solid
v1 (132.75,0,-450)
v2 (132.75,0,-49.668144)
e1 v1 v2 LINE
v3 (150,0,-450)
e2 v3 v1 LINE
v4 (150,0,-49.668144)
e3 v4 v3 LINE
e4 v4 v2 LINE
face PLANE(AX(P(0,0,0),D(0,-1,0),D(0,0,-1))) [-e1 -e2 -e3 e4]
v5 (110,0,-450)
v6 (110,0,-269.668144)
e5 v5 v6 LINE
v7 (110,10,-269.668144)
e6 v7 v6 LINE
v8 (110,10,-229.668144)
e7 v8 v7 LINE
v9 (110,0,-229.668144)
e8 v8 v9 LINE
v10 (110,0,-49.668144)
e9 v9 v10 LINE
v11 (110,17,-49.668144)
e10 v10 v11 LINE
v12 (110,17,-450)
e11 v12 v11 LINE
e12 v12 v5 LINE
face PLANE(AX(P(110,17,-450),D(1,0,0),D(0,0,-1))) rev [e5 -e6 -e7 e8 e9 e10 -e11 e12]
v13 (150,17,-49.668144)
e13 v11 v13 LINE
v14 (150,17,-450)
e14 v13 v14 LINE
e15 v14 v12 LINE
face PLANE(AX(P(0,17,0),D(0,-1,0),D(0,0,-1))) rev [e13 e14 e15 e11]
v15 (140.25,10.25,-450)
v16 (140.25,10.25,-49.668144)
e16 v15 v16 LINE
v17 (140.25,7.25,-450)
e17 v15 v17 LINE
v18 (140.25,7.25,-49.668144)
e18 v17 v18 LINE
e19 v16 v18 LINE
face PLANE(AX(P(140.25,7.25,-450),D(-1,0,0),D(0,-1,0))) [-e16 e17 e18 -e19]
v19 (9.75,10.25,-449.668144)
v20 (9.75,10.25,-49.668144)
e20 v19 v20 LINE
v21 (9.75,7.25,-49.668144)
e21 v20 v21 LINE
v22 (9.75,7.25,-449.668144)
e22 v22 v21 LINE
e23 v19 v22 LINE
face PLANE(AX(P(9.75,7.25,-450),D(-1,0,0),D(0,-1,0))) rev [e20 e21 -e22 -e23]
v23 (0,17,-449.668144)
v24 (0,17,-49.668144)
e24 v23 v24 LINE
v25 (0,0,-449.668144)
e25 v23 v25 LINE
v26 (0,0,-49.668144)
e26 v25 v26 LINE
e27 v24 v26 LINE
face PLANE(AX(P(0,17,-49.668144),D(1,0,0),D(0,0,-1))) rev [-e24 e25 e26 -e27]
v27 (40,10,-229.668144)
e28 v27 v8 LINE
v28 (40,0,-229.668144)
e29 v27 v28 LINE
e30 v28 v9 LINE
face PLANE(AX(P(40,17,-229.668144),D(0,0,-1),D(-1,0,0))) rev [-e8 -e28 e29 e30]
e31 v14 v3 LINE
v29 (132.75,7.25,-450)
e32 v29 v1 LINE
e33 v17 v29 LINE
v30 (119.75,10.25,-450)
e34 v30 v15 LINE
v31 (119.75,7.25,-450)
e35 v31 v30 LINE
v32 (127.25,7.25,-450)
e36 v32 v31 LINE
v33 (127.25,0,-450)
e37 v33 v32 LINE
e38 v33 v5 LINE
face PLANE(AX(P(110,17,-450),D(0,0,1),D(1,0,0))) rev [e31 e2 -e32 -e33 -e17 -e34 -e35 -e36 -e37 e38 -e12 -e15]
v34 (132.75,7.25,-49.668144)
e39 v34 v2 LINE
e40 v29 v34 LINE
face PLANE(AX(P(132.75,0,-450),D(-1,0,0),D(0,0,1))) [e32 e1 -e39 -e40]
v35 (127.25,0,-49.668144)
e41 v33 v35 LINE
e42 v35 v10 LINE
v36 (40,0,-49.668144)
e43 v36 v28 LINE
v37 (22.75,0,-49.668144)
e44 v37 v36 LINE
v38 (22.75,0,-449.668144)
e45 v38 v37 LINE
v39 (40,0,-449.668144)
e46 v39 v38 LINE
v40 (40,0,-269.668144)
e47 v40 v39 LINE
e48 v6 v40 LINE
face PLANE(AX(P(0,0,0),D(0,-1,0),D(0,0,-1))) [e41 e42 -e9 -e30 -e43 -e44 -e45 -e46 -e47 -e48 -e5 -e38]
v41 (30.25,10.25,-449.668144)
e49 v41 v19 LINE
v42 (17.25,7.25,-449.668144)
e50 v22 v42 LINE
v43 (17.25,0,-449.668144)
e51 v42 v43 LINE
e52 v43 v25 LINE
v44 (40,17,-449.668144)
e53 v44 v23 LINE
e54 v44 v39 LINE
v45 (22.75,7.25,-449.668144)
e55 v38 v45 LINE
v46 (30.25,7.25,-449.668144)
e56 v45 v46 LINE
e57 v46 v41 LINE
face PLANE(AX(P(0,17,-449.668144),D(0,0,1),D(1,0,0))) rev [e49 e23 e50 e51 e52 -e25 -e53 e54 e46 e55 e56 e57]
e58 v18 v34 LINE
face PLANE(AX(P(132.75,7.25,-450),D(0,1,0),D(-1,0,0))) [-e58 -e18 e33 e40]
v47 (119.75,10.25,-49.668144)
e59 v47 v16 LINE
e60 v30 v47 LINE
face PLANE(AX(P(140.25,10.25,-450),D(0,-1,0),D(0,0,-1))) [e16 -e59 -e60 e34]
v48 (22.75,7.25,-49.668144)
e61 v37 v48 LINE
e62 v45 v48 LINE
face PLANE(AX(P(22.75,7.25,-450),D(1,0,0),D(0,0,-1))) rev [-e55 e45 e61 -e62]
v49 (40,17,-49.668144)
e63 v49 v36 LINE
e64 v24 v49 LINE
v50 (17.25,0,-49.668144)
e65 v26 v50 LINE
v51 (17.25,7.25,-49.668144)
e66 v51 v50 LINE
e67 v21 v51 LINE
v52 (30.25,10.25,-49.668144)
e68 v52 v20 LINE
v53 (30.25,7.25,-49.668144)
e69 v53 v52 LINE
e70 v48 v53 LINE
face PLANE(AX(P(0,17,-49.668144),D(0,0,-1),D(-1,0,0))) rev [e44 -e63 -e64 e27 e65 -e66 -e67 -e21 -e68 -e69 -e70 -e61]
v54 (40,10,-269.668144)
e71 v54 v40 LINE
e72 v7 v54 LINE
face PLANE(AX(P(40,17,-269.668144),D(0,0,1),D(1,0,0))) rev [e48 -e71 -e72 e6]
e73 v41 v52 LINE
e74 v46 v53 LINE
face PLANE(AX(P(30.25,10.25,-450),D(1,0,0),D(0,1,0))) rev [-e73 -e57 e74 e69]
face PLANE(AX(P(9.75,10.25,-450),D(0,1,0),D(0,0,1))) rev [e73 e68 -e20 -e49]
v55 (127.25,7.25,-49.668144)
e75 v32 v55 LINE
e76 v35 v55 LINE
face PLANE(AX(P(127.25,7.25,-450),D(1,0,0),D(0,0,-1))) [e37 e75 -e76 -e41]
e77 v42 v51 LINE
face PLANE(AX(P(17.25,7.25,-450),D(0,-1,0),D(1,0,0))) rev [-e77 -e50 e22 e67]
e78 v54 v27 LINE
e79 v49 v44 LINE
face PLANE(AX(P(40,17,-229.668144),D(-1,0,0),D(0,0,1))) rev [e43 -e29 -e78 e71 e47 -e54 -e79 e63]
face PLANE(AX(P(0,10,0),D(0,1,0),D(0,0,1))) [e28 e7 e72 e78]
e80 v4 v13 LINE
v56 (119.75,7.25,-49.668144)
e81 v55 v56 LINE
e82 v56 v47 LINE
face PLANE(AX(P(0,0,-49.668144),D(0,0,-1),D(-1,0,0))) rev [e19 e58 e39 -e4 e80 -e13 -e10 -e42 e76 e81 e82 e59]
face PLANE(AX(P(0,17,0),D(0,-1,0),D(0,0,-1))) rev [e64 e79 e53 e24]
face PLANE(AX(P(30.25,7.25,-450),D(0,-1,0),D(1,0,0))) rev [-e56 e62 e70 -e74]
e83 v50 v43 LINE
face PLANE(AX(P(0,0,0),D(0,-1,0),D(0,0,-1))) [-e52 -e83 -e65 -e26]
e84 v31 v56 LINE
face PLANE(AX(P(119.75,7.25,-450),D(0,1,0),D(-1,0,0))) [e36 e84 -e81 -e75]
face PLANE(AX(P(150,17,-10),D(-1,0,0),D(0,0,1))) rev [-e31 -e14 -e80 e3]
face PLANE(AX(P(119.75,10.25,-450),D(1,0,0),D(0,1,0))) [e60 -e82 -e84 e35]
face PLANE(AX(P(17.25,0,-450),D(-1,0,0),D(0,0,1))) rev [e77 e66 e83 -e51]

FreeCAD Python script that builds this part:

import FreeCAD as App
import Part
import Sketcher
Q = App.Units.Quantity


def add_polygon(sketch, points):
    """Adds a closed chain of lines whose ends are joined by coincident constraints."""
    first, n = sketch.GeometryCount, len(points)
    for a, b in zip(points, points[1:] + points[:1]):
        sketch.addGeometry(Part.LineSegment(App.Vector(*a, 0), App.Vector(*b, 0)), False)
    for i in range(n):
        sketch.addConstraint(Sketcher.Constraint("Coincident", first + i, 2, first + (i + 1) % n, 1))

doc = App.newDocument("Part")
body = doc.addObject("PartDesign::Body", "Body")

# Sketch on XZ plane
sketch1 = doc.addObject("Sketcher::SketchObject", "Sketch")
body.addObject(sketch1)
sketch1.AttachmentSupport = (doc.XZ_Plane, [""])
sketch1.MapMode = "FlatFace"
add_polygon(sketch1, [(40, -270), (40, -450), (0, -450), (0, -50), (40, -50), (40, -230), (110, -230), (110, -10), (150, -10), (150, -450), (110, -450), (110, -270)])  # lines 0-11
sketch1.addConstraint([
    Sketcher.Constraint("Vertical", 0),
    Sketcher.Constraint("Horizontal", 1),
    Sketcher.Constraint("Vertical", 2),
    Sketcher.Constraint("Horizontal", 3),
    Sketcher.Constraint("Vertical", 4),
    Sketcher.Constraint("Horizontal", 5),
    Sketcher.Constraint("Vertical", 6),
    Sketcher.Constraint("Horizontal", 7),
    Sketcher.Constraint("Vertical", 8),
    Sketcher.Constraint("Horizontal", 9),
    Sketcher.Constraint("Vertical", 10),
    Sketcher.Constraint("Horizontal", 11),
    Sketcher.Constraint("PointOnObject", 1, 2, -2),
    Sketcher.Constraint("Vertical", 0, 2, 3, 2),
    Sketcher.Constraint("Vertical", 6, 2, 9, 2),
    Sketcher.Constraint("Equal", 3, 7),
    Sketcher.Constraint("Equal", 0, 4),
    Sketcher.Constraint("DistanceX", 1, 2, 1, 1, Q("40 mm")),
    Sketcher.Constraint("DistanceX", 5, 1, 5, 2, Q("70 mm")),
    Sketcher.Constraint("DistanceY", 0, 2, 0, 1, Q("180 mm")),
    Sketcher.Constraint("DistanceY", 2, 1, 2, 2, Q("400 mm")),
    Sketcher.Constraint("DistanceY", 8, 2, 8, 1, Q("440 mm")),
    Sketcher.Constraint("DistanceY", 6, 2, -1, 1, Q("10 mm")),
    Sketcher.Constraint("DistanceY", 6, 1, 6, 2, Q("219.668144 mm")),
])
pad1 = doc.addObject("PartDesign::Pad", "Pad")
body.addObject(pad1)
pad1.Profile = sketch1
pad1.Length = 17
pad1.Reversed = True

# Sketch on XZ plane
sketch2 = doc.addObject("Sketcher::SketchObject", "Sketch001")
body.addObject(sketch2)
sketch2.AttachmentSupport = (doc.XZ_Plane, [""])
sketch2.MapMode = "FlatFace"
sketch2.AttachmentOffset = App.Placement(App.Vector(0, 0, -17), App.Rotation())
add_polygon(sketch2, [(40, -270), (40, -230), (110, -230), (110, -270)])  # lines 0-3
sketch2.addConstraint([
    Sketcher.Constraint("Vertical", 0),
    Sketcher.Constraint("Horizontal", 1),
    Sketcher.Constraint("Vertical", 2),
    Sketcher.Constraint("Horizontal", 3),
    Sketcher.Constraint("DistanceX", 1, 1, 1, 2, Q("70 mm")),
    Sketcher.Constraint("DistanceY", 0, 1, 0, 2, Q("40 mm")),
    Sketcher.Constraint("DistanceX", -1, 1, 0, 2, Q("40 mm")),
    Sketcher.Constraint("DistanceY", 0, 2, -1, 1, Q("229.668144 mm")),
])
pocket1 = doc.addObject("PartDesign::Pocket", "Pocket")
body.addObject(pocket1)
pocket1.Profile = sketch2
pocket1.Length = 7
pocket1.Reversed = True

# Sketch on XY plane
sketch3 = doc.addObject("Sketcher::SketchObject", "Sketch002")
body.addObject(sketch3)
sketch3.AttachmentSupport = (doc.XY_Plane, [""])
sketch3.MapMode = "FlatFace"
sketch3.AttachmentOffset = App.Placement(App.Vector(0, 0, -49.668144), App.Rotation())
add_polygon(sketch3, [(17.2, 7.2), (17.2, 0), (22.8, 0), (22.8, 7.2), (30.2, 7.2), (30.2, 10.2), (9.8, 10.2), (9.8, 7.2)])  # lines 0-7
sketch3.addConstraint([
    Sketcher.Constraint("Vertical", 0),
    Sketcher.Constraint("Horizontal", 1),
    Sketcher.Constraint("Vertical", 2),
    Sketcher.Constraint("Horizontal", 3),
    Sketcher.Constraint("Vertical", 4),
    Sketcher.Constraint("Horizontal", 5),
    Sketcher.Constraint("Vertical", 6),
    Sketcher.Constraint("Horizontal", 7),
    Sketcher.Constraint("PointOnObject", 0, 2, -1),
    Sketcher.Constraint("Horizontal", 3, 2, 6, 2),
    Sketcher.Constraint("Equal", 3, 7),
    Sketcher.Constraint("DistanceY", 4, 1, 4, 2, Q("3 mm")),
    Sketcher.Constraint("DistanceX", 1, 1, 1, 2, Q("5.5 mm")),
    Sketcher.Constraint("DistanceX", 3, 1, 3, 2, Q("7.5 mm")),
    Sketcher.Constraint("DistanceY", 0, 2, 0, 1, Q("7.25 mm")),
    Sketcher.Constraint("DistanceX", -1, 1, 0, 2, Q("17.25 mm")),
])
pocket2 = doc.addObject("PartDesign::Pocket", "Pocket001")
body.addObject(pocket2)
pocket2.Profile = sketch3
pocket2.Type = "ThroughAll"
doc.recompute()

datumplane = doc.addObject("PartDesign::Plane", "DatumPlane")
body.addObject(datumplane)
datumplane.AttachmentSupport = (doc.YZ_Plane, [""])
datumplane.MapMode = "FlatFace"
datumplane.AttachmentOffset = App.Placement(App.Vector(0, 0, 75), App.Rotation())
mirrored = doc.addObject("PartDesign::Mirrored", "Mirrored")
body.addObject(mirrored)
mirrored.Originals = [pocket2]
mirrored.MirrorPlane = (datumplane, [""])
body.Tip = mirrored

# Sketch on XZ plane
sketch4 = doc.addObject("Sketcher::SketchObject", "Sketch003")
body.addObject(sketch4)
sketch4.AttachmentSupport = (doc.XZ_Plane, [""])
sketch4.MapMode = "FlatFace"
sketch4.AttachmentOffset = App.Placement(App.Vector(0, 0, -17), App.Rotation())
add_polygon(sketch4, [(0, -50), (0, -10), (150, -10), (150, -50)])  # lines 0-3
sketch4.addConstraint([
    Sketcher.Constraint("Vertical", 0),
    Sketcher.Constraint("Horizontal", 1),
    Sketcher.Constraint("Vertical", 2),
    Sketcher.Constraint("Horizontal", 3),
    Sketcher.Constraint("PointOnObject", 0, 2, -2),
    Sketcher.Constraint("DistanceX", 1, 1, 1, 2, Q("150 mm")),
    Sketcher.Constraint("DistanceY", 0, 2, -1, 1, Q("10 mm")),
    Sketcher.Constraint("DistanceY", 0, 1, 0, 2, Q("39.668144 mm")),
])
pocket3 = doc.addObject("PartDesign::Pocket", "Pocket002")
body.addObject(pocket3)
pocket3.Profile = sketch4
pocket3.Type = "ThroughAll"
pocket3.Midplane = True

doc.recompute()
